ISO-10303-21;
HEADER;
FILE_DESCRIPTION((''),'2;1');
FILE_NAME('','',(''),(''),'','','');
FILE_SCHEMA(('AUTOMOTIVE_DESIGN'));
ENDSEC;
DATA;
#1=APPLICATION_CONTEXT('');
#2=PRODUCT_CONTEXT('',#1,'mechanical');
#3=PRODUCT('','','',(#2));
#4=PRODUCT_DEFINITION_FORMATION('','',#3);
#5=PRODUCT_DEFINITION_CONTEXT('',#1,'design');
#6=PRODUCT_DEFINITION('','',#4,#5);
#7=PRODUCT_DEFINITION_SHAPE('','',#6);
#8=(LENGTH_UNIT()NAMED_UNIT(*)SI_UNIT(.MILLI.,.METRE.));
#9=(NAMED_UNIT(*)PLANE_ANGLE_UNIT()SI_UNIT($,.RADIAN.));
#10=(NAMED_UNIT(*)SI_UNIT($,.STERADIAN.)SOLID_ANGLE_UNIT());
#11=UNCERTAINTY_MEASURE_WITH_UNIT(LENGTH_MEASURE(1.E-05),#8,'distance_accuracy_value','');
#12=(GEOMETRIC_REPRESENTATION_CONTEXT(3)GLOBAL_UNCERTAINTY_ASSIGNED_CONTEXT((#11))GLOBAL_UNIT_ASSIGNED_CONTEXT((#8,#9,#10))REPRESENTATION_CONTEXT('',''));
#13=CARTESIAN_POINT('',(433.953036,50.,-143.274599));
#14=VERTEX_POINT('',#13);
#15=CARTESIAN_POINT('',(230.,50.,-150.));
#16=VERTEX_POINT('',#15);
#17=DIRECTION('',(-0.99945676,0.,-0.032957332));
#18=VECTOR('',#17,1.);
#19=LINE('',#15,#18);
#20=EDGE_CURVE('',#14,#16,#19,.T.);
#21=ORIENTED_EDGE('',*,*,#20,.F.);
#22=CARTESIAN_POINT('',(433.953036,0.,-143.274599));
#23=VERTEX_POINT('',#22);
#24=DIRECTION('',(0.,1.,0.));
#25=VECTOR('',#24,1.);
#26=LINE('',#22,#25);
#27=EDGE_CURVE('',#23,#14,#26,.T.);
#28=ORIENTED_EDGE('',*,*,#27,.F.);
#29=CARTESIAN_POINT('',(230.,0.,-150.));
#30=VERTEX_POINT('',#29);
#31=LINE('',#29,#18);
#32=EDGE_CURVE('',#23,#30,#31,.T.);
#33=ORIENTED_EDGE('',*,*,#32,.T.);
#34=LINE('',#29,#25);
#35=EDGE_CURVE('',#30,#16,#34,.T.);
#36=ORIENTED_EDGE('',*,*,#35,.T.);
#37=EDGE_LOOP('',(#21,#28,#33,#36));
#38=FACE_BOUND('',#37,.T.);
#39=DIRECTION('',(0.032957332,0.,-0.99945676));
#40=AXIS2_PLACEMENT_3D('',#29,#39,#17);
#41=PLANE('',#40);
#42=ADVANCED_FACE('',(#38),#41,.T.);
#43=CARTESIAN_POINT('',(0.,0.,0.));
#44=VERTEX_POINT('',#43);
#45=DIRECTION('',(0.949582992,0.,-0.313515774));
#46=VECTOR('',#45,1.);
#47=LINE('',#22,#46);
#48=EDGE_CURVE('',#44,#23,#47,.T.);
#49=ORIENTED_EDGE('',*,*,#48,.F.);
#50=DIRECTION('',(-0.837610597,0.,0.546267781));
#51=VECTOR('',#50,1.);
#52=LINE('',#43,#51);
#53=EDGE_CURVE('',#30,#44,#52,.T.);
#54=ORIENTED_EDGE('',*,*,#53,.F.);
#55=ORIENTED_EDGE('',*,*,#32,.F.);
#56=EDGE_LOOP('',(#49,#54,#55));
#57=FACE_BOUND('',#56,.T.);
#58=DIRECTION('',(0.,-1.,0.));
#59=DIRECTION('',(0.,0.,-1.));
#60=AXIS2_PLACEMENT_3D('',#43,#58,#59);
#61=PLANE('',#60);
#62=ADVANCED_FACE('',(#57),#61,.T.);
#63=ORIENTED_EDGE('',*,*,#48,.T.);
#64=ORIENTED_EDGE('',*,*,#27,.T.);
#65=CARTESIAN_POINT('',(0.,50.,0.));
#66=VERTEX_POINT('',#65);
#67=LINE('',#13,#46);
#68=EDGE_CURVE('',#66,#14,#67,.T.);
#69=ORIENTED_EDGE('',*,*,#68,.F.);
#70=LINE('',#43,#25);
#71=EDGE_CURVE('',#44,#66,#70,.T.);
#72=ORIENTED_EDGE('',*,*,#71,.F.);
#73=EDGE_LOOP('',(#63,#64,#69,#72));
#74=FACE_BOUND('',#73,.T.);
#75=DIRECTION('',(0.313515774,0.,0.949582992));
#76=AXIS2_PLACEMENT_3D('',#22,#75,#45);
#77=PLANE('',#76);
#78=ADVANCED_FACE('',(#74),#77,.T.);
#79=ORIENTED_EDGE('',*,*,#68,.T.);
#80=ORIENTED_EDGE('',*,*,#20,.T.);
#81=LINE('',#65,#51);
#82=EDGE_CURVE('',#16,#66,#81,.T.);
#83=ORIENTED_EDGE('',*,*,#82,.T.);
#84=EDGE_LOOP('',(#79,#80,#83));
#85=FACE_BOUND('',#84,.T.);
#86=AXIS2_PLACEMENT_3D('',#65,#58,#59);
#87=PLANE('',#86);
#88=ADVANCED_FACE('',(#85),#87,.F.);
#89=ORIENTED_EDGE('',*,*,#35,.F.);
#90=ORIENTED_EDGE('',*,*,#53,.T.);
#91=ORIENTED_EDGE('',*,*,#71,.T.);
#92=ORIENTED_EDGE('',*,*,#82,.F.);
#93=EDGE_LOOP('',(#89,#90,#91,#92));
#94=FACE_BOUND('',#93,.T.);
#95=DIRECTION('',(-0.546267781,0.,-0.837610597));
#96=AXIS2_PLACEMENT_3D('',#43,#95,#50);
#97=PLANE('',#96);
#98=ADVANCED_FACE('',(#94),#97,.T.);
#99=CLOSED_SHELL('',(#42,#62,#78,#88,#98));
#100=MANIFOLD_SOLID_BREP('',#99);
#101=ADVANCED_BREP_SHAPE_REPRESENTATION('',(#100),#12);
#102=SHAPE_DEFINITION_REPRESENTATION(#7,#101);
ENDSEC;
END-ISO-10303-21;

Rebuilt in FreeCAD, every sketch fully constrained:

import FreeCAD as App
import Part
import Sketcher

V = App.Vector
Q = App.Units.Quantity


def add_polygon(sketch, points):
    """Adds a closed chain of lines whose ends are joined by coincident constraints."""
    first, n = sketch.GeometryCount, len(points)
    for a, b in zip(points, points[1:] + points[:1]):
        sketch.addGeometry(Part.LineSegment(App.Vector(*a, 0), App.Vector(*b, 0)), False)
    for i in range(n):
        sketch.addConstraint(Sketcher.Constraint("Coincident", first + i, 2, first + (i + 1) % n, 1))

doc = App.newDocument("Part")
params = doc.addObject("Spreadsheet::Sheet", "Params")
for row, (alias, value) in enumerate([
    ("sketch1_width", "2300 mm"),
    ("sketch1_height", "150 mm"),
    ("pad1_length", "50 mm"),
], start=1):
    params.set(f"A{row}", alias)
    params.set(f"B{row}", "=" + value)
    params.setAlias(f"B{row}", alias)

body = doc.addObject("PartDesign::Body", "Body")

# Sketch on XZ plane
sketch1 = body.newObject("Sketcher::SketchObject", "Sketch")
sketch1.AttachmentSupport = (doc.getObject("XZ_Plane"), [""])
sketch1.MapMode = "FlatFace"
add_polygon(sketch1, [(0, -150), (0, 0), (2300, 0), (2300, -150)])  # lines 0-3
sketch1.addConstraint(Sketcher.Constraint("Vertical", 0))
sketch1.addConstraint(Sketcher.Constraint("Horizontal", 1))
sketch1.addConstraint(Sketcher.Constraint("Vertical", 2))
sketch1.addConstraint(Sketcher.Constraint("Horizontal", 3))
sketch1.addConstraint(Sketcher.Constraint("Coincident", 0, 2, -1, 1))
sketch1.addConstraint(Sketcher.Constraint("DistanceX", 1, 1, 1, 2, Q("2300 mm")))
sketch1.addConstraint(Sketcher.Constraint("DistanceY", 0, 1, 0, 2, Q("150 mm")))
sketch1.setExpression("Constraints[9]", "Params.sketch1_width")
sketch1.setExpression("Constraints[10]", "Params.sketch1_height")
pad1 = body.newObject("PartDesign::Pad", "Pad")
pad1.Profile = sketch1
pad1.setExpression("Length", "Params.pad1_length")
pad1.Reversed = True

# Sketch on XZ plane
sketch2 = body.newObject("Sketcher::SketchObject", "Sketch001")
sketch2.AttachmentSupport = (doc.getObject("XZ_Plane"), [""])
sketch2.MapMode = "FlatFace"
sketch2.AttachmentOffset = App.Placement(V(0, 0, -50), App.Rotation())
add_polygon(sketch2, [(-231.543, -381.543), (-231.543, 231.543), (2531.543, 231.543), (2531.543, -381.543)])  # lines 0-3
add_polygon(sketch2, [(433.953036, -143.274599), (0, 0), (230, -150)])  # lines 4-6
sketch2.addConstraint(Sketcher.Constraint("Vertical", 0))
sketch2.addConstraint(Sketcher.Constraint("Horizontal", 1))
sketch2.addConstraint(Sketcher.Constraint("Vertical", 2))
sketch2.addConstraint(Sketcher.Constraint("Horizontal", 3))
sketch2.addConstraint(Sketcher.Constraint("Coincident", 4, 2, -1, 1))
sketch2.addConstraint(Sketcher.Constraint("DistanceX", -1, 1, 5, 2, Q("230 mm")))
sketch2.addConstraint(Sketcher.Constraint("DistanceY", 5, 2, -1, 1, Q("150 mm")))
sketch2.addConstraint(Sketcher.Constraint("DistanceX", 1, 1, 1, 2, Q("2763.086 mm")))
sketch2.addConstraint(Sketcher.Constraint("DistanceY", 0, 1, 0, 2, Q("613.086 mm")))
sketch2.addConstraint(Sketcher.Constraint("DistanceX", 0, 2, -1, 1, Q("231.543 mm")))
sketch2.addConstraint(Sketcher.Constraint("DistanceY", -1, 1, 0, 2, Q("231.543 mm")))
sketch2.addConstraint(Sketcher.Constraint("DistanceY", 6, 2, -1, 1, Q("143.274599 mm")))
sketch2.addConstraint(Sketcher.Constraint("Distance", 4, Q("456.993269 mm")))
pocket1 = body.newObject("PartDesign::Pocket", "Pocket")
pocket1.Profile = sketch2
pocket1.Type = "ThroughAll"
pocket1.Reversed = True

doc.recompute()
